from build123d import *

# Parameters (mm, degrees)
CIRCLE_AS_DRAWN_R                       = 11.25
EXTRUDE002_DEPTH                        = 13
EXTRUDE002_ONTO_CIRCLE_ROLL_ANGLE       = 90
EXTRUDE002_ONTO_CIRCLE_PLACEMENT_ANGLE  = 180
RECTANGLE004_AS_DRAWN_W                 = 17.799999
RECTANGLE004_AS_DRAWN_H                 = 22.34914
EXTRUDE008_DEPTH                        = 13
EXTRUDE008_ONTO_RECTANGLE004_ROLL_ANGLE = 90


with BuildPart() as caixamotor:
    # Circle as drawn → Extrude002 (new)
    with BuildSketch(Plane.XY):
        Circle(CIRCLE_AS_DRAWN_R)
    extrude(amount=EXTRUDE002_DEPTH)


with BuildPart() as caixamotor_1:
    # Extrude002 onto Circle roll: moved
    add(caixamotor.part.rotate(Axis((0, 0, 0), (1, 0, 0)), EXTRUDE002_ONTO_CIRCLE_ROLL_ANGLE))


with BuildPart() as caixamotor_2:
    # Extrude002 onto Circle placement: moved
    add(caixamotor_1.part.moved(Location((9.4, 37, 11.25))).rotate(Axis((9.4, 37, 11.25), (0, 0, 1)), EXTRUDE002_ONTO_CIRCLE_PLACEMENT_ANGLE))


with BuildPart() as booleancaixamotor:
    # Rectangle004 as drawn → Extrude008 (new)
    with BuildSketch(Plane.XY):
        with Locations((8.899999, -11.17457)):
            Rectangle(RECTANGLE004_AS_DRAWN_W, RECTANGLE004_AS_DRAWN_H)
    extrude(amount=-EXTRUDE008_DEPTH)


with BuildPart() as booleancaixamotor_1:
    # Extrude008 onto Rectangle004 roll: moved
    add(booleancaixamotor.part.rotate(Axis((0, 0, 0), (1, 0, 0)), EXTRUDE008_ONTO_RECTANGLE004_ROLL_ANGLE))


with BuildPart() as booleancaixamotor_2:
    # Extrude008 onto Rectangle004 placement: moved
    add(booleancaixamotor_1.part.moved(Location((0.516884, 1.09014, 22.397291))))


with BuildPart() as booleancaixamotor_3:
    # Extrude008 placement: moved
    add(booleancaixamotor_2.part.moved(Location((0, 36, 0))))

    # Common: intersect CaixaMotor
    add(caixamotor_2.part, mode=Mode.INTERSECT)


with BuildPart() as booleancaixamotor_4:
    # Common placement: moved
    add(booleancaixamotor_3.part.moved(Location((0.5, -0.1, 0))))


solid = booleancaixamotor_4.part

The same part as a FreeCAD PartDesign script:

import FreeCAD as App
import Part
import Sketcher

doc = App.newDocument("Part")
params = doc.addObject("Spreadsheet::Sheet", "Params")
for row, (alias, value) in enumerate([
    ("sketch1_diameter", "22.5 mm"),
    ("pad1_length", "13 mm"),
    ("sketch2_width", "17.799999 mm"),
    ("pad2_length", "13 mm"),
], start=1):
    params.set(f"A{row}", alias)
    params.set(f"B{row}", "=" + value)
    params.setAlias(f"B{row}", alias)

body = doc.addObject("PartDesign::Body", "Body")

sketch1 = body.newObject("Sketcher::SketchObject", "Sketch")
sketch1.AttachmentSupport = (doc.getObject("XY_Plane"), [""])
sketch1.MapMode = "FlatFace"
sketch1.addGeometry(Part.Circle(App.Vector(0, 0, 0), App.Vector(0, 0, 1), 11), False)
sketch1.addConstraint([
    Sketcher.Constraint("Coincident", 0, 3, -1, 1),
    Sketcher.Constraint("Diameter", 0, 22.5),
])
sketch1.setExpression("Constraints[1]", "Params.sketch1_diameter")
pad1 = body.newObject("PartDesign::Pad", "Pad")
pad1.Profile = sketch1
pad1.setExpression("Length", "Params.pad1_length")
body2 = doc.addObject("PartDesign::Body", "Body001")
doc.recompute()

body.Placement = App.Placement(App.Vector(0, 0, 0), App.Rotation(App.Vector(1, 0, 0), 90))
boolean = body2.newObject("PartDesign::Boolean", "Boolean")
boolean.Type = "Fuse"
boolean.addObjects([body])
body3 = doc.addObject("PartDesign::Body", "Body002")
doc.recompute()

body2.Placement = App.Placement(App.Vector(9.4, 37, 11.25), App.Rotation(App.Vector(0, 0, 1), 180))
boolean2 = body3.newObject("PartDesign::Boolean", "Boolean001")
boolean2.Type = "Fuse"
boolean2.addObjects([body2])
body4 = doc.addObject("PartDesign::Body", "Body003")

sketch2 = body4.newObject("Sketcher::SketchObject", "Sketch001")
sketch2.AttachmentSupport = (doc.getObject("XY_Plane003"), [""])
sketch2.MapMode = "FlatFace"
sketch2.addGeometry([
    Part.LineSegment(App.Vector(0, 0, 0), App.Vector(0, -22, 0)),
    Part.LineSegment(App.Vector(0, -22, 0), App.Vector(18, -22, 0)),
    Part.LineSegment(App.Vector(18, -22, 0), App.Vector(18, 0, 0)),
    Part.LineSegment(App.Vector(18, 0, 0), App.Vector(0, 0, 0)),
], False)
sketch2.addConstraint([
    Sketcher.Constraint("Coincident", 0, 2, 1, 1),
    Sketcher.Constraint("Coincident", 1, 2, 2, 1),
    Sketcher.Constraint("Coincident", 2, 2, 3, 1),
    Sketcher.Constraint("Coincident", 3, 2, 0, 1),
    Sketcher.Constraint("Vertical", 0),
    Sketcher.Constraint("Horizontal", 1),
    Sketcher.Constraint("Vertical", 2),
    Sketcher.Constraint("Horizontal", 3),
    Sketcher.Constraint("Coincident", 3, 2, -1, 1),
    Sketcher.Constraint("DistanceX", 1, 1, 1, 2, 17.799999),
    Sketcher.Constraint("DistanceY", 0, 2, 0, 1, 22.34914),
])
sketch2.setExpression("Constraints[9]", "Params.sketch2_width")
pad2 = body4.newObject("PartDesign::Pad", "Pad001")
pad2.Profile = sketch2
pad2.setExpression("Length", "Params.pad2_length")
pad2.Reversed = True
body5 = doc.addObject("PartDesign::Body", "Body004")
doc.recompute()

body4.Placement = App.Placement(App.Vector(0, 0, 0), App.Rotation(App.Vector(1, 0, 0), 90))
boolean3 = body5.newObject("PartDesign::Boolean", "Boolean002")
boolean3.Type = "Fuse"
boolean3.addObjects([body4])
body6 = doc.addObject("PartDesign::Body", "Body005")
doc.recompute()

body5.Placement = App.Placement(App.Vector(0.516884, 1.09014, 22.397291), App.Rotation(App.Vector(0, 0, 1), 0))
boolean4 = body6.newObject("PartDesign::Boolean", "Boolean003")
boolean4.Type = "Fuse"
boolean4.addObjects([body5])
body7 = doc.addObject("PartDesign::Body", "Body006")
doc.recompute()

body6.Placement = App.Placement(App.Vector(0, 36, 0), App.Rotation(App.Vector(0, 0, 1), 0))
boolean5 = body7.newObject("PartDesign::Boolean", "Boolean004")
boolean5.Type = "Fuse"
boolean5.addObjects([body6])
doc.recompute()

boolean6 = body7.newObject("PartDesign::Boolean", "Boolean005")
boolean6.Type = "Common"
boolean6.addObjects([body3])
body8 = doc.addObject("PartDesign::Body", "Body007")
doc.recompute()

body7.Placement = App.Placement(App.Vector(0.5, -0.1, 0), App.Rotation(App.Vector(0, 0, 1), 0))
boolean7 = body8.newObject("PartDesign::Boolean", "Boolean006")
boolean7.Type = "Fuse"
boolean7.addObjects([body7])

doc.recompute()
